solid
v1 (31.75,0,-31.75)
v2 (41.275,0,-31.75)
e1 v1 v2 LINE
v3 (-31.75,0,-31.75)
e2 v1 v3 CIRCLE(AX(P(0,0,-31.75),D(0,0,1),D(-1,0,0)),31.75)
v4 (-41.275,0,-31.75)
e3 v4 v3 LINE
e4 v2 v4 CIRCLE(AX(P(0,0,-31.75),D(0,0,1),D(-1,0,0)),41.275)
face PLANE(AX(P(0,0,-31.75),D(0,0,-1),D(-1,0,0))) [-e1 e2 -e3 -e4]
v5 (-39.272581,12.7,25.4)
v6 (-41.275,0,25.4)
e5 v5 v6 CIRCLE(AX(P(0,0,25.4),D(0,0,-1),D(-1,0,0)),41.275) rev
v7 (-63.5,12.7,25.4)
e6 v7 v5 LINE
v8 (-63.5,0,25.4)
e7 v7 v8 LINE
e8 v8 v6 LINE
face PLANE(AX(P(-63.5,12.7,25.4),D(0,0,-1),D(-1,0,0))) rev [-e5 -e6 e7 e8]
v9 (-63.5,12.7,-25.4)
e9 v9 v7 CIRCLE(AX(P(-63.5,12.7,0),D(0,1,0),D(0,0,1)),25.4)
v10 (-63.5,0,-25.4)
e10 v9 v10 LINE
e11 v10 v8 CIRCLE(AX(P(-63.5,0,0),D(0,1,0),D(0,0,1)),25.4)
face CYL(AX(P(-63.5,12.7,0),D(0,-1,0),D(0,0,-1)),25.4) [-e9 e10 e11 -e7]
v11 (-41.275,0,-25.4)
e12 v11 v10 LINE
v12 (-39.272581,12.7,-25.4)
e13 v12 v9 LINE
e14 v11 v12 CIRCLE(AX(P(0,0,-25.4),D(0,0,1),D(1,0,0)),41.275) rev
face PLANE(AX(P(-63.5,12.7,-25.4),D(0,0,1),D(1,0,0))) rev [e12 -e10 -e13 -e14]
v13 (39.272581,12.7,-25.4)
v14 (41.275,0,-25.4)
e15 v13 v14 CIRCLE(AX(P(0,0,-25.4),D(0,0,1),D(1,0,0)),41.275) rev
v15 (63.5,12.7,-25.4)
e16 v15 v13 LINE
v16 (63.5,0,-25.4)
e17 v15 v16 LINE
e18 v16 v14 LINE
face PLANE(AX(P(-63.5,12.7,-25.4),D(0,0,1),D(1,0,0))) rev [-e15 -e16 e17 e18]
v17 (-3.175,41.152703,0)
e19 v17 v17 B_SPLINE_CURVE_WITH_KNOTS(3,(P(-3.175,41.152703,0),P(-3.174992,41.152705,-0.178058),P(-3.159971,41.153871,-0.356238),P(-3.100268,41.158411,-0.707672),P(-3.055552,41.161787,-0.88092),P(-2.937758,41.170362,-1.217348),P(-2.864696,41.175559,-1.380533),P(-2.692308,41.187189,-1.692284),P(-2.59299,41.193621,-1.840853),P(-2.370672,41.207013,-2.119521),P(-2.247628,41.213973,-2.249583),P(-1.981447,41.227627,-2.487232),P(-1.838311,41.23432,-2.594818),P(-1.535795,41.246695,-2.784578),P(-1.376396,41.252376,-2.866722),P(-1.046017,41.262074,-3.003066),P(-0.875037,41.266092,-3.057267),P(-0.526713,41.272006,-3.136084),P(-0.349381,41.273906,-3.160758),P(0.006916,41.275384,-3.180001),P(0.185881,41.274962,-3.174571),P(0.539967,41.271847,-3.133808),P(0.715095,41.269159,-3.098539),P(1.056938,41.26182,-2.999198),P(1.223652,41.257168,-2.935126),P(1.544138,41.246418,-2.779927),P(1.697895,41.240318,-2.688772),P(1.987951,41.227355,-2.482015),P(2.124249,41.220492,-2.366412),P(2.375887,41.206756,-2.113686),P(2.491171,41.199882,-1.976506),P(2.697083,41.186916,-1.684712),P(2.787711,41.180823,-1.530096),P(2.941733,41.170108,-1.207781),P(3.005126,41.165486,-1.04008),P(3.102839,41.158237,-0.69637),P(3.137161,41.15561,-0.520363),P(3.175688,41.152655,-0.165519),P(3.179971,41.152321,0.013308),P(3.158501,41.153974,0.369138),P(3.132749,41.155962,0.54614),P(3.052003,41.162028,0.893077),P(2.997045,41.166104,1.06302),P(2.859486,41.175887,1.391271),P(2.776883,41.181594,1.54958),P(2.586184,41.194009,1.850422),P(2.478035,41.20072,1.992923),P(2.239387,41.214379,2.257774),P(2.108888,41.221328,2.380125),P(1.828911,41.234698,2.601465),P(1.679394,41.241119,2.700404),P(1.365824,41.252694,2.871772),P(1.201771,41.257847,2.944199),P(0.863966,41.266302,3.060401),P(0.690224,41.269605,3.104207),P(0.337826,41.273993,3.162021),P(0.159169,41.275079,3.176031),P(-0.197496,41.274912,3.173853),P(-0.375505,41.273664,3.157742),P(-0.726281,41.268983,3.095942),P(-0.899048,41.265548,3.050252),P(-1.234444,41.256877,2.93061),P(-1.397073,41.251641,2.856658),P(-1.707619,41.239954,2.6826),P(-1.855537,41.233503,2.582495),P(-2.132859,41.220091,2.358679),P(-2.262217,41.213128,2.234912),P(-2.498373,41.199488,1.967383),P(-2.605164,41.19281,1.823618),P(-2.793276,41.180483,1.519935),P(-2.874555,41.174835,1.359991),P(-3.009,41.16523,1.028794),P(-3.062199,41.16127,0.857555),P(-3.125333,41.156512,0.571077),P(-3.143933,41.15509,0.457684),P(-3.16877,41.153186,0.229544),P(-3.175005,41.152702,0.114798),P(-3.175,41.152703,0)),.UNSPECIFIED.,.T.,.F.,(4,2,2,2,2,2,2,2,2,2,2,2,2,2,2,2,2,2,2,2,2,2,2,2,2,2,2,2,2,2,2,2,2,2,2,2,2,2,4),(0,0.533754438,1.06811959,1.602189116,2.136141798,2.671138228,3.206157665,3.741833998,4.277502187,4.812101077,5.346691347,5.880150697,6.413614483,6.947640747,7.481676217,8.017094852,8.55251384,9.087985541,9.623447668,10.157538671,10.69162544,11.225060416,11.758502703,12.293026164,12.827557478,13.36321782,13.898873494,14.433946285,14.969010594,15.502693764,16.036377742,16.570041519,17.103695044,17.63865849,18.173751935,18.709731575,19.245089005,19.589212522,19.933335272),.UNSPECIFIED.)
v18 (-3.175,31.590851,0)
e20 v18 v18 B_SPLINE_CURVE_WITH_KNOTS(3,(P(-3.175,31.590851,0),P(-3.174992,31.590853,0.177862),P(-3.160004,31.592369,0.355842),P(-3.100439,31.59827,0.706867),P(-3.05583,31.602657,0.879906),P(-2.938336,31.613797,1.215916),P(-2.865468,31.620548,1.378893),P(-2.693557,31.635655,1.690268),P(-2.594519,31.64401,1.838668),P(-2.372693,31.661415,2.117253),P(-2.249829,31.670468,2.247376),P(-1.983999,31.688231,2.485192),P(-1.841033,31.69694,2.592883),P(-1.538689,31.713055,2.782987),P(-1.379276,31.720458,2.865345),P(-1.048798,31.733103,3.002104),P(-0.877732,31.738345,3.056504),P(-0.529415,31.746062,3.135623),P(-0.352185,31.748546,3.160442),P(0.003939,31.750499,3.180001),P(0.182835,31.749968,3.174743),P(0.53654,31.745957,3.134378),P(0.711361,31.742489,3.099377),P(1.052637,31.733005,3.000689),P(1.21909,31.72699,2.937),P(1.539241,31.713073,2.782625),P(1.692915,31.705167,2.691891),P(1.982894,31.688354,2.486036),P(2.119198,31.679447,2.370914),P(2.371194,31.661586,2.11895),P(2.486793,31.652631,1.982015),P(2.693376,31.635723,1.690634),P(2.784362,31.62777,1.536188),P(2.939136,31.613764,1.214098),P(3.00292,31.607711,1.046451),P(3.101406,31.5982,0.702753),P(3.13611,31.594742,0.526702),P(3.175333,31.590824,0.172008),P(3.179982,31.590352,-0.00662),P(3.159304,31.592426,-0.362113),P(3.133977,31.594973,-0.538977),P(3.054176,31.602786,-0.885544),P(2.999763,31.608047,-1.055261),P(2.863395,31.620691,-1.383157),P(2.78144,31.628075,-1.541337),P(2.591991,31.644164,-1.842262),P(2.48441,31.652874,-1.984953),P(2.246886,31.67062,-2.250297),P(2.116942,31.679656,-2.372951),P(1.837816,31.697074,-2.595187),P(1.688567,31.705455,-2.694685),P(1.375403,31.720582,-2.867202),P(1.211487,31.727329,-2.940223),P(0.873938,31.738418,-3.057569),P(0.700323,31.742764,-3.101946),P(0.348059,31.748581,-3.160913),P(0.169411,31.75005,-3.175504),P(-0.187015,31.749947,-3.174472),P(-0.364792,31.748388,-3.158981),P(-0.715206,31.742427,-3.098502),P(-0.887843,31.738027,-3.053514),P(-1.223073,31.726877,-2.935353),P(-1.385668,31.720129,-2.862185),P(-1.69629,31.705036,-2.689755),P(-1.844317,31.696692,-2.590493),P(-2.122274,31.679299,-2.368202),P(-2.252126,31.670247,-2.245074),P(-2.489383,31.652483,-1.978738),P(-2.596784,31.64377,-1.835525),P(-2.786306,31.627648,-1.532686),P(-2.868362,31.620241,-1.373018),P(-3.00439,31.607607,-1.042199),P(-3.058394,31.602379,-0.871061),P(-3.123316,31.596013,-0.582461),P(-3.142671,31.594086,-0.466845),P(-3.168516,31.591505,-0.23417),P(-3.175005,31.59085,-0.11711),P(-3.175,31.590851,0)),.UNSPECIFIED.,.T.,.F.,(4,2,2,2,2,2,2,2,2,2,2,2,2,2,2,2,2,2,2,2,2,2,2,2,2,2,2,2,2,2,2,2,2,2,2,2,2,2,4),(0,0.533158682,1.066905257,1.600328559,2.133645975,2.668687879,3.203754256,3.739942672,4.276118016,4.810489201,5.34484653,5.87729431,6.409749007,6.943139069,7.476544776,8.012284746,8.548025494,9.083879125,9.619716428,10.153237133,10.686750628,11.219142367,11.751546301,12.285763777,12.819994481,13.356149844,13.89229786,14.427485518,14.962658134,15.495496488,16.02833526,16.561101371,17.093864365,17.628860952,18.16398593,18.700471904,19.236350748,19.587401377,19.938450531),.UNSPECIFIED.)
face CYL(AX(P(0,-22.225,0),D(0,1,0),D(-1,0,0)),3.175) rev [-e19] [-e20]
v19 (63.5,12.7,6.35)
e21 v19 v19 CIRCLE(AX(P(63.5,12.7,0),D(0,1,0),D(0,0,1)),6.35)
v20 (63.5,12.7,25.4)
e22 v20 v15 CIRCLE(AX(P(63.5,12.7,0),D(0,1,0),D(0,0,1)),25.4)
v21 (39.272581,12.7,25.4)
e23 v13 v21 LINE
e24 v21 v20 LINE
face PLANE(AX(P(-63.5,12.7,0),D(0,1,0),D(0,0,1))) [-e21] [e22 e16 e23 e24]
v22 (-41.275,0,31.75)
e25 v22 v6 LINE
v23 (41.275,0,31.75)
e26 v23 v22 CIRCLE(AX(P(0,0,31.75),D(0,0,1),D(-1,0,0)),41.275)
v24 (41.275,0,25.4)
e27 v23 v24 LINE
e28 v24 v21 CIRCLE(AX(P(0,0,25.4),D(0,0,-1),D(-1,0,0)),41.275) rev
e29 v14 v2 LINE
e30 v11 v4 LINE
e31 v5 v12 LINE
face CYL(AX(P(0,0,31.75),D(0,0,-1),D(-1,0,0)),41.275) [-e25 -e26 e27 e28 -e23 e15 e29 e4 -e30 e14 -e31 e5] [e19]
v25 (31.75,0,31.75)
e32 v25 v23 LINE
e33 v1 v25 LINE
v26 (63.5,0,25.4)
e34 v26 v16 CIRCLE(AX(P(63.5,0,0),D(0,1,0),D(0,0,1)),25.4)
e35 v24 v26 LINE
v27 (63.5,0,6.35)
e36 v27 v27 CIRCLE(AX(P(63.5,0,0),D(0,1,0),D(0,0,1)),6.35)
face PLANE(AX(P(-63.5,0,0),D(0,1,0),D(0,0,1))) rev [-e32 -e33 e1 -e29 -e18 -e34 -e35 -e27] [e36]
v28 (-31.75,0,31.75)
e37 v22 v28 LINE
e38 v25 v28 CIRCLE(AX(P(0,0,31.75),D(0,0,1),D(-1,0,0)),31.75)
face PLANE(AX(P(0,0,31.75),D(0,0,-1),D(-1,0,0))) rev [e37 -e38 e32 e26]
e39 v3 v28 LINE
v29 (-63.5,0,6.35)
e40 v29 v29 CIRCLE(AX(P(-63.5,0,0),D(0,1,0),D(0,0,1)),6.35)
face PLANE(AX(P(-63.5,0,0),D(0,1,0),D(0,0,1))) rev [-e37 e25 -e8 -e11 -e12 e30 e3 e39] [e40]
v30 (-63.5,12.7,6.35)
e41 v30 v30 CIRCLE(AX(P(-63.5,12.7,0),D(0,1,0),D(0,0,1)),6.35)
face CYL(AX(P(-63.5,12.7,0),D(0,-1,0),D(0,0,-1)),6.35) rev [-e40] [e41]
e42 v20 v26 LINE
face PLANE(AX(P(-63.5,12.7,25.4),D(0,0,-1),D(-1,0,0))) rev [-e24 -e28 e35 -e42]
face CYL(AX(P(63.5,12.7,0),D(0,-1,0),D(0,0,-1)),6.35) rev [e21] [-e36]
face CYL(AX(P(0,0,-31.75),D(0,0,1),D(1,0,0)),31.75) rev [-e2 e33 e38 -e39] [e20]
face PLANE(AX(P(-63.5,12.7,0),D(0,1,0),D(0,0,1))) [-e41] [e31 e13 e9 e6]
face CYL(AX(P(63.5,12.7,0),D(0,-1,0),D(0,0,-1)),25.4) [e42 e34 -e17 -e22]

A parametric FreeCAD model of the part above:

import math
import FreeCAD as App
import Part
import Sketcher
Q = App.Units.Quantity

doc = App.newDocument("Part")
params = doc.addObject("Spreadsheet::Sheet", "Params")
for row, (alias, value) in enumerate([
    ("sketch1_radius", "1 in"),
    ("sketch1_diameter", "0.5 in"),
    ("sketch1_width", "5 in"),
    ("pad1_length", "0.5 in"),
    ("sketch2_radius", "1.625 in"),
    ("pad2_length", "2.5 in"),
    ("sketch3_radius", "1.25 in"),
    ("pocket1_length", "2.5 in"),
    ("sketch4_diameter", "0.25 in"),
    ("pocket2_length", "2.5 in"),
], start=1):
    params.set(f"A{row}", alias)
    params.set(f"B{row}", "=" + value)
    params.setAlias(f"B{row}", alias)

body = doc.addObject("PartDesign::Body", "Body")

# Sketch on XZ plane
sketch1 = doc.addObject("Sketcher::SketchObject", "Sketch")
body.addObject(sketch1)
sketch1.AttachmentSupport = (doc.XZ_Plane, [""])
sketch1.MapMode = "FlatFace"
sketch1.addGeometry([
    Part.LineSegment(App.Vector(64, -25, 0), App.Vector(-64, -25, 0)),  # 0
    Part.ArcOfCircle(Part.Circle(App.Vector(-64, 0, 0), App.Vector(0, 0, 1), 25), math.radians(90), math.radians(270)),  # 1
    Part.LineSegment(App.Vector(-64, 25, 0), App.Vector(64, 25, 0)),  # 2
    Part.ArcOfCircle(Part.Circle(App.Vector(64, 0, 0), App.Vector(0, 0, 1), 25), math.radians(-90), math.radians(90)),  # 3
    Part.Circle(App.Vector(64, 0, 0), App.Vector(0, 0, 1), 6),  # 4
    Part.Circle(App.Vector(-64, 0, 0), App.Vector(0, 0, 1), 6),  # 5
], False)
sketch1.addConstraint([
    Sketcher.Constraint("Tangent", 0, 2, 1, 2),
    Sketcher.Constraint("Tangent", 1, 1, 2, 1),
    Sketcher.Constraint("Tangent", 2, 2, 3, 2),
    Sketcher.Constraint("Tangent", 3, 1, 0, 1),
    Sketcher.Constraint("Horizontal", 0),
    Sketcher.Constraint("Horizontal", 2),
    Sketcher.Constraint("Coincident", 4, 3, 3, 3),
    Sketcher.Constraint("Coincident", 5, 3, 1, 3),
    Sketcher.Constraint("Equal", 4, 5),
    Sketcher.Constraint("Symmetric", 1, 3, 3, 3, -1, 1),
    Sketcher.Constraint("Radius", 1, Q("1 in")),
    Sketcher.Constraint("Diameter", 4, Q("0.5 in")),
    Sketcher.Constraint("DistanceX", 0, 2, 0, 1, Q("5 in")),
])
sketch1.setExpression("Constraints[10]", "Params.sketch1_radius")
sketch1.setExpression("Constraints[11]", "Params.sketch1_diameter")
sketch1.setExpression("Constraints[12]", "Params.sketch1_width")
pad1 = doc.addObject("PartDesign::Pad", "Pad")
body.addObject(pad1)
pad1.Profile = sketch1
pad1.setExpression("Length", "Params.pad1_length")
pad1.Reversed = True

# Sketch on XY plane
sketch2 = doc.addObject("Sketcher::SketchObject", "Sketch001")
body.addObject(sketch2)
sketch2.AttachmentSupport = (doc.XY_Plane, [""])
sketch2.MapMode = "FlatFace"
sketch2.addGeometry([
    Part.LineSegment(App.Vector(-41, 0, 0), App.Vector(41, 0, 0)),
    Part.ArcOfCircle(Part.Circle(App.Vector(0, 0, 0), App.Vector(0, 0, 1), 41), math.radians(0), math.radians(180)),
], False)
sketch2.addConstraint([
    Sketcher.Constraint("Coincident", 0, 1, 1, 2),
    Sketcher.Constraint("Coincident", 1, 1, 0, 2),
    Sketcher.Constraint("Horizontal", 0),
    Sketcher.Constraint("Coincident", 1, 3, -1, 1),
    Sketcher.Constraint("PointOnObject", 0, 1, -1),
    Sketcher.Constraint("Radius", 1, Q("1.625 in")),
])
sketch2.setExpression("Constraints[5]", "Params.sketch2_radius")
pad2 = doc.addObject("PartDesign::Pad", "Pad001")
body.addObject(pad2)
pad2.Profile = sketch2
pad2.setExpression("Length", "Params.pad2_length")
pad2.Midplane = True

# Sketch on XY plane
sketch3 = doc.addObject("Sketcher::SketchObject", "Sketch002")
body.addObject(sketch3)
sketch3.AttachmentSupport = (doc.XY_Plane, [""])
sketch3.MapMode = "FlatFace"
sketch3.AttachmentOffset = App.Placement(App.Vector(0, 0, 1.25 * 25.4), App.Rotation())
sketch3.addGeometry([
    Part.LineSegment(App.Vector(-32, 0, 0), App.Vector(32, 0, 0)),
    Part.ArcOfCircle(Part.Circle(App.Vector(0, 0, 0), App.Vector(0, 0, 1), 32), math.radians(0), math.radians(180)),
], False)
sketch3.addConstraint([
    Sketcher.Constraint("Coincident", 0, 1, 1, 2),
    Sketcher.Constraint("Coincident", 1, 1, 0, 2),
    Sketcher.Constraint("Horizontal", 0),
    Sketcher.Constraint("Coincident", 1, 3, -1, 1),
    Sketcher.Constraint("PointOnObject", 0, 1, -1),
    Sketcher.Constraint("Radius", 1, Q("1.25 in")),
])
sketch3.setExpression("Constraints[5]", "Params.sketch3_radius")
pocket1 = doc.addObject("PartDesign::Pocket", "Pocket")
body.addObject(pocket1)
pocket1.Profile = sketch3
pocket1.setExpression("Length", "Params.pocket1_length")

# Sketch on XZ plane
sketch4 = doc.addObject("Sketcher::SketchObject", "Sketch003")
body.addObject(sketch4)
sketch4.AttachmentSupport = (doc.XZ_Plane, [""])
sketch4.MapMode = "FlatFace"
sketch4.AttachmentOffset = App.Placement(App.Vector(0, 0, -1.625 * 25.4), App.Rotation())
sketch4.addGeometry(Part.Circle(App.Vector(0, 0, 0), App.Vector(0, 0, 1), 3.2), False)
sketch4.addConstraint([
    Sketcher.Constraint("Coincident", 0, 3, -1, 1),
    Sketcher.Constraint("Diameter", 0, Q("0.25 in")),
])
sketch4.setExpression("Constraints[1]", "Params.sketch4_diameter")
pocket2 = doc.addObject("PartDesign::Pocket", "Pocket001")
body.addObject(pocket2)
pocket2.Profile = sketch4
pocket2.setExpression("Length", "Params.pocket2_length")
pocket2.Reversed = True

doc.recompute()
